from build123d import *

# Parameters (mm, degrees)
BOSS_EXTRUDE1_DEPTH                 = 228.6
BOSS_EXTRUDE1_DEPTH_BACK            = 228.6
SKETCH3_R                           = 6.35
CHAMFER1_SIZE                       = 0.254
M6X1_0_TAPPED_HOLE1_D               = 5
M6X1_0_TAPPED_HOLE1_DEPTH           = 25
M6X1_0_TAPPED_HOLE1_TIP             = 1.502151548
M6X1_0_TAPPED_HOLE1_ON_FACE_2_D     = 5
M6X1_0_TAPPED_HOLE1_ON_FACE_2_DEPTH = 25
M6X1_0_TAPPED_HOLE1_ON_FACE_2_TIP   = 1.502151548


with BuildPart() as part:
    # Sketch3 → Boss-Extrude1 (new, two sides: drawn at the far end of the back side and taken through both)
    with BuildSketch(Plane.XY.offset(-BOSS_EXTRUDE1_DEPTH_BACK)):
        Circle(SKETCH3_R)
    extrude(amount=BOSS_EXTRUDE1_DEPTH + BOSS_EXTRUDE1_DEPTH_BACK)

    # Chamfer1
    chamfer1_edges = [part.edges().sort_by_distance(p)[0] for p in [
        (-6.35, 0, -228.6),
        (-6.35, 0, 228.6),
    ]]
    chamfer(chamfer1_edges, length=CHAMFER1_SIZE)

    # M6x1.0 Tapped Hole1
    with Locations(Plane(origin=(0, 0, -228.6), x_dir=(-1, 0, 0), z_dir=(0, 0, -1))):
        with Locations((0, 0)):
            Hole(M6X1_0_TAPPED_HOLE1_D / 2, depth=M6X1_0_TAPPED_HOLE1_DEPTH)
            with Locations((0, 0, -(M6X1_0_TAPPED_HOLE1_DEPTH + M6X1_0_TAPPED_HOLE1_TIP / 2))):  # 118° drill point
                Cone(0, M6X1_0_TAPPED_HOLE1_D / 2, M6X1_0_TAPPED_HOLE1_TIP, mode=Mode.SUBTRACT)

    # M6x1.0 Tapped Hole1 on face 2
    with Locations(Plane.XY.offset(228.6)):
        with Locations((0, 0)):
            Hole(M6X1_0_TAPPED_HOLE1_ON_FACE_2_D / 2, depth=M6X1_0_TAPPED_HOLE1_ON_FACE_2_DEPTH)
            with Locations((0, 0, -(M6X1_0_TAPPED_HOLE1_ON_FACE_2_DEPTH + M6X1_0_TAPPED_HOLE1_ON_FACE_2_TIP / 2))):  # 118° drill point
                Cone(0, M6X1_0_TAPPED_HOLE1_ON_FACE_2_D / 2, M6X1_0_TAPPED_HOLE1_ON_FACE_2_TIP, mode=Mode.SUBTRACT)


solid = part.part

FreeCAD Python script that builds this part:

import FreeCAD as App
import Part
import Sketcher

V = App.Vector
Q = App.Units.Quantity


def edges_at(feature, points):
    """Names of the edges that pass closest to the given points."""
    edges = feature.Shape.Edges
    near = lambda p: min(range(len(edges)), key=lambda i: edges[i].distToShape(Part.Vertex(*p))[0])
    return sorted({f"Edge{near(p) + 1}" for p in points})

doc = App.newDocument("Part")
body = doc.addObject("PartDesign::Body", "Body")

sketch1 = body.newObject("Sketcher::SketchObject", "Sketch")
sketch1.AttachmentSupport = (doc.getObject("XY_Plane"), [""])
sketch1.MapMode = "FlatFace"
sketch1.addGeometry(Part.Circle(V(0, 0, 0), V(0, 0, 1), 6.35), False)
sketch1.addConstraint([
    Sketcher.Constraint("Coincident", 0, 3, -1, 1),
    Sketcher.Constraint("Diameter", 0, Q("0.5 in")),
])
pad1 = body.newObject("PartDesign::Pad", "Pad")
pad1.Profile = sketch1
pad1.Type = "TwoLengths"
pad1.Length = Q("9 in")
pad1.Length2 = Q("9 in")
doc.recompute()

chamfer = body.newObject("PartDesign::Chamfer", "Chamfer")
chamfer.Base = (pad1, edges_at(pad1, [(-6.35, 0, -228.6), (-6.35, 0, 228.6)]))
chamfer.Size = Q("0.01 in")

sketch2 = body.newObject("Sketcher::SketchObject", "Sketch001")
sketch2.AttachmentSupport = (doc.getObject("XY_Plane"), [""])
sketch2.MapMode = "FlatFace"
sketch2.AttachmentOffset = App.Placement(V(0, 0, -9 * 25.4), App.Rotation())
sketch2.addGeometry(Part.Circle(V(0, 0, 0), V(0, 0, 1), 2.5), False)
sketch2.addConstraint([
    Sketcher.Constraint("Coincident", 0, 3, -1, 1),
    Sketcher.Constraint("Diameter", 0, Q("5 mm")),
])
doc.recompute()
hole = body.newObject("PartDesign::Hole", "Hole")
hole.Profile = sketch2
hole.ThreadType = "None"
hole.Diameter = 5
hole.DepthType = "Dimension"
hole.Depth = 25
hole.DrillPoint = "Angled"
hole.DrillPointAngle = 118
hole.Reversed = True

sketch3 = body.newObject("Sketcher::SketchObject", "Sketch002")
sketch3.AttachmentSupport = (doc.getObject("XY_Plane"), [""])
sketch3.MapMode = "FlatFace"
sketch3.AttachmentOffset = App.Placement(V(0, 0, 9 * 25.4), App.Rotation())
sketch3.addGeometry(Part.Circle(V(0, 0, 0), V(0, 0, 1), 2.5), False)
sketch3.addConstraint([
    Sketcher.Constraint("Coincident", 0, 3, -1, 1),
    Sketcher.Constraint("Diameter", 0, Q("5 mm")),
])
doc.recompute()
hole2 = body.newObject("PartDesign::Hole", "Hole001")
hole2.Profile = sketch3
hole2.ThreadType = "None"
hole2.Diameter = 5
hole2.DepthType = "Dimension"
hole2.Depth = 25
hole2.DrillPoint = "Angled"
hole2.DrillPointAngle = 118

doc.recompute()
